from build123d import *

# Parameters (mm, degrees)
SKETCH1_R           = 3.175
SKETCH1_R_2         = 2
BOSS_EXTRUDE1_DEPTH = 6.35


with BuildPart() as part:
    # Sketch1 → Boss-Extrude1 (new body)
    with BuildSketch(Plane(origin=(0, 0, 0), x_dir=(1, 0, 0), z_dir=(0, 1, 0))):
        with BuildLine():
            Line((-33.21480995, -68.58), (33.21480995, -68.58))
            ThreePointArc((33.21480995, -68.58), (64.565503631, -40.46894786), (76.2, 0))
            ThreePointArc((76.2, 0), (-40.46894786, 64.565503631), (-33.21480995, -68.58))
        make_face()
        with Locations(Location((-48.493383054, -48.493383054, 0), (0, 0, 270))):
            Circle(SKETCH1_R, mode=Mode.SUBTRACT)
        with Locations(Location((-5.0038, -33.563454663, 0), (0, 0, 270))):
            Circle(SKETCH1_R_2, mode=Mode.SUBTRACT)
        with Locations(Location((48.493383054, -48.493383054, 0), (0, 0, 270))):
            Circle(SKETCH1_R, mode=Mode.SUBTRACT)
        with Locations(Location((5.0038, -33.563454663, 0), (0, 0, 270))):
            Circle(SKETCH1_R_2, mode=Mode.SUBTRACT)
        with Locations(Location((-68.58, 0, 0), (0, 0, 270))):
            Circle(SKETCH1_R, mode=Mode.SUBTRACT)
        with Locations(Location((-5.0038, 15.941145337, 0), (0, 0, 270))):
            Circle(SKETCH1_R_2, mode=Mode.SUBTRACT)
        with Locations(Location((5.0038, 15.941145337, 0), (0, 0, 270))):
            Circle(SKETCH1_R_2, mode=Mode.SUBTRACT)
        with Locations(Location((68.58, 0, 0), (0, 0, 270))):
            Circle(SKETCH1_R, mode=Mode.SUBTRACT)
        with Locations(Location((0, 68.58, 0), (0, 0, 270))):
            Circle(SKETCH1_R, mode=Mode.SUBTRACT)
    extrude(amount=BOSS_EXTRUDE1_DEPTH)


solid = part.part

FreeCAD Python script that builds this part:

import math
import FreeCAD as App
import Part
import Sketcher
Q = App.Units.Quantity

doc = App.newDocument("Part")
params = doc.addObject("Spreadsheet::Sheet", "Params")
for row, (alias, value) in enumerate([
    ("sketch1_radius", "3 in"),
    ("sketch1_diameter", "0.25 in"),
    ("pad1_length", "0.25 in"),
], start=1):
    params.set(f"A{row}", alias)
    params.set(f"B{row}", "=" + value)
    params.setAlias(f"B{row}", alias)

body = doc.addObject("PartDesign::Body", "Body")

# Sketch on XZ plane
sketch1 = doc.addObject("Sketcher::SketchObject", "Sketch")
body.addObject(sketch1)
sketch1.AttachmentSupport = (doc.XZ_Plane, [""])
sketch1.MapMode = "FlatFace"
sketch1.addGeometry([
    Part.LineSegment(App.Vector(-33.2, 68.6, 0), App.Vector(33.2, 68.6, 0)),  # 0
    Part.ArcOfCircle(Part.Circle(App.Vector(0, 0, 0), App.Vector(0, 0, 1), 76.2), math.radians(0), math.radians(64)),  # 1
    Part.ArcOfCircle(Part.Circle(App.Vector(0, 0, 0), App.Vector(0, 0, 1), 76.2), math.radians(116), math.radians(360)),  # 2
    Part.Circle(App.Vector(-48.5, 48.5, 0), App.Vector(0, 0, 1), 3.2),  # 3
    Part.Circle(App.Vector(-5, 33.6, 0), App.Vector(0, 0, 1), 2),  # 4
    Part.Circle(App.Vector(-68.6, 0, 0), App.Vector(0, 0, 1), 3.2),  # 5
    Part.Circle(App.Vector(5, 33.6, 0), App.Vector(0, 0, 1), 2),  # 6
    Part.Circle(App.Vector(48.5, 48.5, 0), App.Vector(0, 0, 1), 3.2),  # 7
    Part.Circle(App.Vector(68.6, 0, 0), App.Vector(0, 0, 1), 3.2),  # 8
    Part.Circle(App.Vector(-5, -15.9, 0), App.Vector(0, 0, 1), 2),  # 9
    Part.Circle(App.Vector(5, -15.9, 0), App.Vector(0, 0, 1), 2),  # 10
    Part.Circle(App.Vector(0, -68.6, 0), App.Vector(0, 0, 1), 3.2),  # 11
], False)
sketch1.addConstraint([
    Sketcher.Constraint("Coincident", 0, 2, 1, 2),
    Sketcher.Constraint("Tangent", 1, 1, 2, 2),
    Sketcher.Constraint("Coincident", 2, 1, 0, 1),
    Sketcher.Constraint("Horizontal", 0),
    Sketcher.Constraint("Coincident", 1, 3, -1, 1),
    Sketcher.Constraint("Equal", 1, 2),
    Sketcher.Constraint("Equal", 3, 5),
    Sketcher.Constraint("Equal", 4, 6),
    Sketcher.Constraint("Equal", 5, 7),
    Sketcher.Constraint("Equal", 7, 8),
    Sketcher.Constraint("Equal", 6, 9),
    Sketcher.Constraint("Equal", 9, 10),
    Sketcher.Constraint("Equal", 8, 11),
    Sketcher.Constraint("Symmetric", 5, 3, 8, 3, -1, 1),
    Sketcher.Constraint("Symmetric", 4, 3, 6, 3, -2),
    Sketcher.Constraint("Symmetric", 3, 3, 7, 3, -2),
    Sketcher.Constraint("Symmetric", 9, 3, 10, 3, -2),
    Sketcher.Constraint("PointOnObject", 5, 3, -1),
    Sketcher.Constraint("PointOnObject", 11, 3, -2),
    Sketcher.Constraint("PointOnObject", 1, 1, -1),
    Sketcher.Constraint("Vertical", 4, 3, 9, 3),
    Sketcher.Constraint("Radius", 1, Q("3 in")),
    Sketcher.Constraint("Diameter", 3, Q("0.25 in")),
    Sketcher.Constraint("DistanceX", 5, 3, -1, 1, Q("2.7 in")),
    Sketcher.Constraint("DistanceY", 11, 3, -1, 1, Q("2.7 in")),
    Sketcher.Constraint("DistanceY", -1, 1, 0, 2, Q("2.7 in")),
    Sketcher.Constraint("Diameter", 4, Q("4 mm")),
    Sketcher.Constraint("DistanceX", 4, 3, -1, 1, Q("0.197 in")),
    Sketcher.Constraint("DistanceY", 9, 3, 4, 3, Q("1.949 in")),
    Sketcher.Constraint("DistanceY", 4, 3, 3, 3, Q("14.929928 mm")),
    Sketcher.Constraint("DistanceX", 3, 3, -1, 1, Q("48.493383 mm")),
    Sketcher.Constraint("DistanceY", -1, 1, 3, 3, Q("48.493383 mm")),
])
sketch1.setExpression("Constraints[21]", "Params.sketch1_radius")
sketch1.setExpression("Constraints[22]", "Params.sketch1_diameter")
pad1 = doc.addObject("PartDesign::Pad", "Pad")
body.addObject(pad1)
pad1.Profile = sketch1
pad1.setExpression("Length", "Params.pad1_length")
pad1.Reversed = True

doc.recompute()
